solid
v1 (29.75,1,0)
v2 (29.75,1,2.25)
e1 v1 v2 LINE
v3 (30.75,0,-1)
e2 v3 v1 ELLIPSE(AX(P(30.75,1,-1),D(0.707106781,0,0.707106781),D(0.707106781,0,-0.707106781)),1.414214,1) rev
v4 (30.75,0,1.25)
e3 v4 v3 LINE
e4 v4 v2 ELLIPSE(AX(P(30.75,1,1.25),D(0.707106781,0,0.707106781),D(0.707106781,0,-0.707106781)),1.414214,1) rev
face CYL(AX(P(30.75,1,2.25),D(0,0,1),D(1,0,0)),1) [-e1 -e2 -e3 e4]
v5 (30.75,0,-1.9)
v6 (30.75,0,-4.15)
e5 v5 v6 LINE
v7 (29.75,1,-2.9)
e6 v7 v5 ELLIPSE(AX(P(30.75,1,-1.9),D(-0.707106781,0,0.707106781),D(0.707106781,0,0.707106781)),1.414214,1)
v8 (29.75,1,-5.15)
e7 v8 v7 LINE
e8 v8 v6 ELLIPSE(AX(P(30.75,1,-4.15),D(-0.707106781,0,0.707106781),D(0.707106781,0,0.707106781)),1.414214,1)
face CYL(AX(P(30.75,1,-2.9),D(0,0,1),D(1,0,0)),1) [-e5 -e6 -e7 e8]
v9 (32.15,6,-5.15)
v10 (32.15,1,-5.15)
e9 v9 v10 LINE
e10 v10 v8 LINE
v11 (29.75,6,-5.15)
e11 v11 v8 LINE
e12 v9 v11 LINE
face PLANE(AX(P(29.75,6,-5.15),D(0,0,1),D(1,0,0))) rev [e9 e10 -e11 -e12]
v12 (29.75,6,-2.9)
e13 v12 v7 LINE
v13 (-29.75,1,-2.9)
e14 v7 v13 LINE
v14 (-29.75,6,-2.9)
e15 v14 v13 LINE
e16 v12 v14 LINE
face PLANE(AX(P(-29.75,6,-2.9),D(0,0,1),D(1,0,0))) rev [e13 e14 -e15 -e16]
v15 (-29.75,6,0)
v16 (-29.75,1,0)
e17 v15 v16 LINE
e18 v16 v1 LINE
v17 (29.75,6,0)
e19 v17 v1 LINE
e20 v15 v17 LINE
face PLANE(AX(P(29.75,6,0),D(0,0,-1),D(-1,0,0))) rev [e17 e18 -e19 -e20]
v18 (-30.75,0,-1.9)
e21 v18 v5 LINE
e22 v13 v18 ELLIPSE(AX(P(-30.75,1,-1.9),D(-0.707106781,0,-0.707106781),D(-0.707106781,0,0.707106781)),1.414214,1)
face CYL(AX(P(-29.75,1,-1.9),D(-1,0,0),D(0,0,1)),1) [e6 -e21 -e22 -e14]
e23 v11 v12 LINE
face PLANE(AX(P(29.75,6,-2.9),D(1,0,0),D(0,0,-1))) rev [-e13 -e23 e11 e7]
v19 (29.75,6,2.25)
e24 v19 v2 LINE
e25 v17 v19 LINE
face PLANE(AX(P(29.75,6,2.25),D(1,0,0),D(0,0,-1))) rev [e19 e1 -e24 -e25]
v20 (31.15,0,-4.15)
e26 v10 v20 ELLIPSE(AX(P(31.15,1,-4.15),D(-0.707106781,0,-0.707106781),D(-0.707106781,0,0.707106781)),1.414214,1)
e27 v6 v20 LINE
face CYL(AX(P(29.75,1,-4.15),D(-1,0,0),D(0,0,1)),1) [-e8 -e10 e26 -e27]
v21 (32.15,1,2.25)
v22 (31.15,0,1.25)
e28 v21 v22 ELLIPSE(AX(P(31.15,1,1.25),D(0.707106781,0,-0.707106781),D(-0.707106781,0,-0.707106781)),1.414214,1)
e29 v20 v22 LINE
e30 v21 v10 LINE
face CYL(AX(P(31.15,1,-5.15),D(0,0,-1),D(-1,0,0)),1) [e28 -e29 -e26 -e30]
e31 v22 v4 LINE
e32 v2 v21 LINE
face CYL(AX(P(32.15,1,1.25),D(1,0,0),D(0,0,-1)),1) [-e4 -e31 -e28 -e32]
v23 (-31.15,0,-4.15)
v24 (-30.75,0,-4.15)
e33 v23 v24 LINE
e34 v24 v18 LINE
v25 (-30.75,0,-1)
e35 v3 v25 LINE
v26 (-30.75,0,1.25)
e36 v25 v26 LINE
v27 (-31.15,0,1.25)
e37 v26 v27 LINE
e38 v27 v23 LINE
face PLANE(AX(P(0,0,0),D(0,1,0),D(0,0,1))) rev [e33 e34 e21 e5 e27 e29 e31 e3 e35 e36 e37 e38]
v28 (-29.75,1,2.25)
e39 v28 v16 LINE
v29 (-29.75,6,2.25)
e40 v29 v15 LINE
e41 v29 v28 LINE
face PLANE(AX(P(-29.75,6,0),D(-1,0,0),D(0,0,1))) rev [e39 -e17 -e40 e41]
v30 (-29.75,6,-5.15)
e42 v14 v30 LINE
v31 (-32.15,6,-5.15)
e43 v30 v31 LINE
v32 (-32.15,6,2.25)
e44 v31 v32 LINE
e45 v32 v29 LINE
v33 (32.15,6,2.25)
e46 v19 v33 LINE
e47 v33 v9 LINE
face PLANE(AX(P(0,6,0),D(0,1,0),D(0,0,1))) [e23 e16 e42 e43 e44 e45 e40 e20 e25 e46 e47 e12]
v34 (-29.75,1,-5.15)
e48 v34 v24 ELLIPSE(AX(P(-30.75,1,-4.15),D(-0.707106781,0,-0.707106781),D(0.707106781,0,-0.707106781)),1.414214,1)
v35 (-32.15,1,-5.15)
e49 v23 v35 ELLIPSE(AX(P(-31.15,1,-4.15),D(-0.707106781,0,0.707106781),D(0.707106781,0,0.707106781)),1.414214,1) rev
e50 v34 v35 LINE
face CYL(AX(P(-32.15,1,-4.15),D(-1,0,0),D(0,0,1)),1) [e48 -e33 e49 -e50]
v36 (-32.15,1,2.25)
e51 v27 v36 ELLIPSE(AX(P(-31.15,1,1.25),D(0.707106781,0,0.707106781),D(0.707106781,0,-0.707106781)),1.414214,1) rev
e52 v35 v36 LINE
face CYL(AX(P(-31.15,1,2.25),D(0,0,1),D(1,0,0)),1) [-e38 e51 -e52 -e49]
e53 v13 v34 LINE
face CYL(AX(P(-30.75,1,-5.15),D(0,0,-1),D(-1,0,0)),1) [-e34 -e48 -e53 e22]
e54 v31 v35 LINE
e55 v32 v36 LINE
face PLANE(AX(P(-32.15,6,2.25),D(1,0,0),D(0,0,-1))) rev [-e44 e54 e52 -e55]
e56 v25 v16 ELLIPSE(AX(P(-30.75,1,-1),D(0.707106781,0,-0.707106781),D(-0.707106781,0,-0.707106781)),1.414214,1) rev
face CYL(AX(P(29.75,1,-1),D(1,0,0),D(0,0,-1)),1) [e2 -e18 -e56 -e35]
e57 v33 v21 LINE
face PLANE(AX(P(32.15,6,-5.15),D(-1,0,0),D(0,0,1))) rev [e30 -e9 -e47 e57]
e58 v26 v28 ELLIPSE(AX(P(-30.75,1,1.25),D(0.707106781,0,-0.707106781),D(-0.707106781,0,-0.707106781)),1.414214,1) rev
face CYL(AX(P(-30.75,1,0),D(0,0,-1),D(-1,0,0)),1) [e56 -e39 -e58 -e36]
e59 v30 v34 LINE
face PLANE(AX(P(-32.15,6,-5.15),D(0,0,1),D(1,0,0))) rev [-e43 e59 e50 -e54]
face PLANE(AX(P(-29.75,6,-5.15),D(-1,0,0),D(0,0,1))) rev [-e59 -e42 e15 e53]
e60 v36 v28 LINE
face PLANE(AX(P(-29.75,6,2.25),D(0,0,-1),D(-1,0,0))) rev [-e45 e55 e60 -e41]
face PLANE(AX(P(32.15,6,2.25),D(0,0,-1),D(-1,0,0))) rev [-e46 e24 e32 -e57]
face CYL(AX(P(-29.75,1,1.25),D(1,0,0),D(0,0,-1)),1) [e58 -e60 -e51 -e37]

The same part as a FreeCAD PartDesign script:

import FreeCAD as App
import Part
import Sketcher

V = App.Vector


def edges_at(feature, points):
    """Names of the edges that pass closest to the given points."""
    edges = feature.Shape.Edges
    near = lambda p: min(range(len(edges)), key=lambda i: edges[i].distToShape(Part.Vertex(*p))[0])
    return sorted({f"Edge{near(p) + 1}" for p in points})

doc = App.newDocument("Part")
body = doc.addObject("PartDesign::Body", "Body")

# Sketch on XZ plane
sketch1 = doc.addObject("Sketcher::SketchObject", "Sketch")
body.addObject(sketch1)
sketch1.AttachmentSupport = (doc.XZ_Plane, [""])
sketch1.MapMode = "FlatFace"
sketch1.addGeometry(Part.LineSegment(V(29.8, -2.9, 0), V(-29.8, -2.9, 0)), False)
sketch1.addGeometry(Part.LineSegment(V(-29.8, -2.9, 0), V(-29.8, -5.2, 0)), False)
sketch1.addGeometry(Part.LineSegment(V(-29.8, -5.2, 0), V(-32.1, -5.2, 0)), False)
sketch1.addGeometry(Part.LineSegment(V(-32.1, -5.2, 0), V(-32.1, 2.2, 0)), False)
sketch1.addGeometry(Part.LineSegment(V(-32.1, 2.2, 0), V(-29.8, 2.2, 0)), False)
sketch1.addGeometry(Part.LineSegment(V(-29.8, 2.2, 0), V(-29.8, 0, 0)), False)
sketch1.addGeometry(Part.LineSegment(V(-29.8, 0, 0), V(29.8, 0, 0)), False)
sketch1.addGeometry(Part.LineSegment(V(29.8, 0, 0), V(29.8, 2.2, 0)), False)
sketch1.addGeometry(Part.LineSegment(V(29.8, 2.2, 0), V(32.1, 2.2, 0)), False)
sketch1.addGeometry(Part.LineSegment(V(32.1, 2.2, 0), V(32.1, -5.2, 0)), False)
sketch1.addGeometry(Part.LineSegment(V(32.1, -5.2, 0), V(29.8, -5.2, 0)), False)
sketch1.addGeometry(Part.LineSegment(V(29.8, -5.2, 0), V(29.8, -2.9, 0)), False)
sketch1.addConstraint(Sketcher.Constraint("Coincident", 0, 2, 1, 1))
sketch1.addConstraint(Sketcher.Constraint("Coincident", 1, 2, 2, 1))
sketch1.addConstraint(Sketcher.Constraint("Coincident", 2, 2, 3, 1))
sketch1.addConstraint(Sketcher.Constraint("Coincident", 3, 2, 4, 1))
sketch1.addConstraint(Sketcher.Constraint("Coincident", 4, 2, 5, 1))
sketch1.addConstraint(Sketcher.Constraint("Coincident", 5, 2, 6, 1))
sketch1.addConstraint(Sketcher.Constraint("Coincident", 6, 2, 7, 1))
sketch1.addConstraint(Sketcher.Constraint("Coincident", 7, 2, 8, 1))
sketch1.addConstraint(Sketcher.Constraint("Coincident", 8, 2, 9, 1))
sketch1.addConstraint(Sketcher.Constraint("Coincident", 9, 2, 10, 1))
sketch1.addConstraint(Sketcher.Constraint("Coincident", 10, 2, 11, 1))
sketch1.addConstraint(Sketcher.Constraint("Coincident", 11, 2, 0, 1))
sketch1.addConstraint(Sketcher.Constraint("Horizontal", 0))
sketch1.addConstraint(Sketcher.Constraint("Vertical", 1))
sketch1.addConstraint(Sketcher.Constraint("Horizontal", 2))
sketch1.addConstraint(Sketcher.Constraint("Vertical", 3))
sketch1.addConstraint(Sketcher.Constraint("Horizontal", 4))
sketch1.addConstraint(Sketcher.Constraint("Vertical", 5))
sketch1.addConstraint(Sketcher.Constraint("Horizontal", 6))
sketch1.addConstraint(Sketcher.Constraint("Vertical", 7))
sketch1.addConstraint(Sketcher.Constraint("Horizontal", 8))
sketch1.addConstraint(Sketcher.Constraint("Vertical", 9))
sketch1.addConstraint(Sketcher.Constraint("Horizontal", 10))
sketch1.addConstraint(Sketcher.Constraint("Vertical", 11))
sketch1.addConstraint(Sketcher.Constraint("Symmetric", 5, 2, 6, 2, -1, 1))
sketch1.addConstraint(Sketcher.Constraint("Symmetric", 3, 2, 8, 2, -2))
sketch1.addConstraint(Sketcher.Constraint("Symmetric", 1, 2, 10, 2, -2))
sketch1.addConstraint(Sketcher.Constraint("Vertical", 1, 2, 4, 2))
sketch1.addConstraint(Sketcher.Constraint("Equal", 1, 5))
sketch1.addConstraint(Sketcher.Constraint("DistanceX", 0, 2, 0, 1, 59.5))
sketch1.addConstraint(Sketcher.Constraint("DistanceX", 2, 2, 2, 1, 2.4))
sketch1.addConstraint(Sketcher.Constraint("DistanceY", 3, 1, 3, 2, 7.4))
sketch1.addConstraint(Sketcher.Constraint("DistanceY", 1, 2, 1, 1, 2.25))
pad1 = doc.addObject("PartDesign::Pad", "Pad")
body.addObject(pad1)
pad1.Profile = sketch1
pad1.Length = 6
pad1.Reversed = True
doc.recompute()

fillet = doc.addObject("PartDesign::Fillet", "Fillet")
body.addObject(fillet)
fillet.Base = (pad1, edges_at(pad1, [
    (0, 0, -2.9),
    (29.75, 0, -4.025),
    (30.95, 0, -5.15),
    (32.15, 0, -1.45),
    (30.95, 0, 2.25),
    (29.75, 0, 1.125),
    (0, 0, 0),
    (-29.75, 0, 1.125),
    (-30.95, 0, 2.25),
    (-32.15, 0, -1.45),
    (-30.95, 0, -5.15),
    (-29.75, 0, -4.025),
]))
fillet.Radius = 1

doc.recompute()
